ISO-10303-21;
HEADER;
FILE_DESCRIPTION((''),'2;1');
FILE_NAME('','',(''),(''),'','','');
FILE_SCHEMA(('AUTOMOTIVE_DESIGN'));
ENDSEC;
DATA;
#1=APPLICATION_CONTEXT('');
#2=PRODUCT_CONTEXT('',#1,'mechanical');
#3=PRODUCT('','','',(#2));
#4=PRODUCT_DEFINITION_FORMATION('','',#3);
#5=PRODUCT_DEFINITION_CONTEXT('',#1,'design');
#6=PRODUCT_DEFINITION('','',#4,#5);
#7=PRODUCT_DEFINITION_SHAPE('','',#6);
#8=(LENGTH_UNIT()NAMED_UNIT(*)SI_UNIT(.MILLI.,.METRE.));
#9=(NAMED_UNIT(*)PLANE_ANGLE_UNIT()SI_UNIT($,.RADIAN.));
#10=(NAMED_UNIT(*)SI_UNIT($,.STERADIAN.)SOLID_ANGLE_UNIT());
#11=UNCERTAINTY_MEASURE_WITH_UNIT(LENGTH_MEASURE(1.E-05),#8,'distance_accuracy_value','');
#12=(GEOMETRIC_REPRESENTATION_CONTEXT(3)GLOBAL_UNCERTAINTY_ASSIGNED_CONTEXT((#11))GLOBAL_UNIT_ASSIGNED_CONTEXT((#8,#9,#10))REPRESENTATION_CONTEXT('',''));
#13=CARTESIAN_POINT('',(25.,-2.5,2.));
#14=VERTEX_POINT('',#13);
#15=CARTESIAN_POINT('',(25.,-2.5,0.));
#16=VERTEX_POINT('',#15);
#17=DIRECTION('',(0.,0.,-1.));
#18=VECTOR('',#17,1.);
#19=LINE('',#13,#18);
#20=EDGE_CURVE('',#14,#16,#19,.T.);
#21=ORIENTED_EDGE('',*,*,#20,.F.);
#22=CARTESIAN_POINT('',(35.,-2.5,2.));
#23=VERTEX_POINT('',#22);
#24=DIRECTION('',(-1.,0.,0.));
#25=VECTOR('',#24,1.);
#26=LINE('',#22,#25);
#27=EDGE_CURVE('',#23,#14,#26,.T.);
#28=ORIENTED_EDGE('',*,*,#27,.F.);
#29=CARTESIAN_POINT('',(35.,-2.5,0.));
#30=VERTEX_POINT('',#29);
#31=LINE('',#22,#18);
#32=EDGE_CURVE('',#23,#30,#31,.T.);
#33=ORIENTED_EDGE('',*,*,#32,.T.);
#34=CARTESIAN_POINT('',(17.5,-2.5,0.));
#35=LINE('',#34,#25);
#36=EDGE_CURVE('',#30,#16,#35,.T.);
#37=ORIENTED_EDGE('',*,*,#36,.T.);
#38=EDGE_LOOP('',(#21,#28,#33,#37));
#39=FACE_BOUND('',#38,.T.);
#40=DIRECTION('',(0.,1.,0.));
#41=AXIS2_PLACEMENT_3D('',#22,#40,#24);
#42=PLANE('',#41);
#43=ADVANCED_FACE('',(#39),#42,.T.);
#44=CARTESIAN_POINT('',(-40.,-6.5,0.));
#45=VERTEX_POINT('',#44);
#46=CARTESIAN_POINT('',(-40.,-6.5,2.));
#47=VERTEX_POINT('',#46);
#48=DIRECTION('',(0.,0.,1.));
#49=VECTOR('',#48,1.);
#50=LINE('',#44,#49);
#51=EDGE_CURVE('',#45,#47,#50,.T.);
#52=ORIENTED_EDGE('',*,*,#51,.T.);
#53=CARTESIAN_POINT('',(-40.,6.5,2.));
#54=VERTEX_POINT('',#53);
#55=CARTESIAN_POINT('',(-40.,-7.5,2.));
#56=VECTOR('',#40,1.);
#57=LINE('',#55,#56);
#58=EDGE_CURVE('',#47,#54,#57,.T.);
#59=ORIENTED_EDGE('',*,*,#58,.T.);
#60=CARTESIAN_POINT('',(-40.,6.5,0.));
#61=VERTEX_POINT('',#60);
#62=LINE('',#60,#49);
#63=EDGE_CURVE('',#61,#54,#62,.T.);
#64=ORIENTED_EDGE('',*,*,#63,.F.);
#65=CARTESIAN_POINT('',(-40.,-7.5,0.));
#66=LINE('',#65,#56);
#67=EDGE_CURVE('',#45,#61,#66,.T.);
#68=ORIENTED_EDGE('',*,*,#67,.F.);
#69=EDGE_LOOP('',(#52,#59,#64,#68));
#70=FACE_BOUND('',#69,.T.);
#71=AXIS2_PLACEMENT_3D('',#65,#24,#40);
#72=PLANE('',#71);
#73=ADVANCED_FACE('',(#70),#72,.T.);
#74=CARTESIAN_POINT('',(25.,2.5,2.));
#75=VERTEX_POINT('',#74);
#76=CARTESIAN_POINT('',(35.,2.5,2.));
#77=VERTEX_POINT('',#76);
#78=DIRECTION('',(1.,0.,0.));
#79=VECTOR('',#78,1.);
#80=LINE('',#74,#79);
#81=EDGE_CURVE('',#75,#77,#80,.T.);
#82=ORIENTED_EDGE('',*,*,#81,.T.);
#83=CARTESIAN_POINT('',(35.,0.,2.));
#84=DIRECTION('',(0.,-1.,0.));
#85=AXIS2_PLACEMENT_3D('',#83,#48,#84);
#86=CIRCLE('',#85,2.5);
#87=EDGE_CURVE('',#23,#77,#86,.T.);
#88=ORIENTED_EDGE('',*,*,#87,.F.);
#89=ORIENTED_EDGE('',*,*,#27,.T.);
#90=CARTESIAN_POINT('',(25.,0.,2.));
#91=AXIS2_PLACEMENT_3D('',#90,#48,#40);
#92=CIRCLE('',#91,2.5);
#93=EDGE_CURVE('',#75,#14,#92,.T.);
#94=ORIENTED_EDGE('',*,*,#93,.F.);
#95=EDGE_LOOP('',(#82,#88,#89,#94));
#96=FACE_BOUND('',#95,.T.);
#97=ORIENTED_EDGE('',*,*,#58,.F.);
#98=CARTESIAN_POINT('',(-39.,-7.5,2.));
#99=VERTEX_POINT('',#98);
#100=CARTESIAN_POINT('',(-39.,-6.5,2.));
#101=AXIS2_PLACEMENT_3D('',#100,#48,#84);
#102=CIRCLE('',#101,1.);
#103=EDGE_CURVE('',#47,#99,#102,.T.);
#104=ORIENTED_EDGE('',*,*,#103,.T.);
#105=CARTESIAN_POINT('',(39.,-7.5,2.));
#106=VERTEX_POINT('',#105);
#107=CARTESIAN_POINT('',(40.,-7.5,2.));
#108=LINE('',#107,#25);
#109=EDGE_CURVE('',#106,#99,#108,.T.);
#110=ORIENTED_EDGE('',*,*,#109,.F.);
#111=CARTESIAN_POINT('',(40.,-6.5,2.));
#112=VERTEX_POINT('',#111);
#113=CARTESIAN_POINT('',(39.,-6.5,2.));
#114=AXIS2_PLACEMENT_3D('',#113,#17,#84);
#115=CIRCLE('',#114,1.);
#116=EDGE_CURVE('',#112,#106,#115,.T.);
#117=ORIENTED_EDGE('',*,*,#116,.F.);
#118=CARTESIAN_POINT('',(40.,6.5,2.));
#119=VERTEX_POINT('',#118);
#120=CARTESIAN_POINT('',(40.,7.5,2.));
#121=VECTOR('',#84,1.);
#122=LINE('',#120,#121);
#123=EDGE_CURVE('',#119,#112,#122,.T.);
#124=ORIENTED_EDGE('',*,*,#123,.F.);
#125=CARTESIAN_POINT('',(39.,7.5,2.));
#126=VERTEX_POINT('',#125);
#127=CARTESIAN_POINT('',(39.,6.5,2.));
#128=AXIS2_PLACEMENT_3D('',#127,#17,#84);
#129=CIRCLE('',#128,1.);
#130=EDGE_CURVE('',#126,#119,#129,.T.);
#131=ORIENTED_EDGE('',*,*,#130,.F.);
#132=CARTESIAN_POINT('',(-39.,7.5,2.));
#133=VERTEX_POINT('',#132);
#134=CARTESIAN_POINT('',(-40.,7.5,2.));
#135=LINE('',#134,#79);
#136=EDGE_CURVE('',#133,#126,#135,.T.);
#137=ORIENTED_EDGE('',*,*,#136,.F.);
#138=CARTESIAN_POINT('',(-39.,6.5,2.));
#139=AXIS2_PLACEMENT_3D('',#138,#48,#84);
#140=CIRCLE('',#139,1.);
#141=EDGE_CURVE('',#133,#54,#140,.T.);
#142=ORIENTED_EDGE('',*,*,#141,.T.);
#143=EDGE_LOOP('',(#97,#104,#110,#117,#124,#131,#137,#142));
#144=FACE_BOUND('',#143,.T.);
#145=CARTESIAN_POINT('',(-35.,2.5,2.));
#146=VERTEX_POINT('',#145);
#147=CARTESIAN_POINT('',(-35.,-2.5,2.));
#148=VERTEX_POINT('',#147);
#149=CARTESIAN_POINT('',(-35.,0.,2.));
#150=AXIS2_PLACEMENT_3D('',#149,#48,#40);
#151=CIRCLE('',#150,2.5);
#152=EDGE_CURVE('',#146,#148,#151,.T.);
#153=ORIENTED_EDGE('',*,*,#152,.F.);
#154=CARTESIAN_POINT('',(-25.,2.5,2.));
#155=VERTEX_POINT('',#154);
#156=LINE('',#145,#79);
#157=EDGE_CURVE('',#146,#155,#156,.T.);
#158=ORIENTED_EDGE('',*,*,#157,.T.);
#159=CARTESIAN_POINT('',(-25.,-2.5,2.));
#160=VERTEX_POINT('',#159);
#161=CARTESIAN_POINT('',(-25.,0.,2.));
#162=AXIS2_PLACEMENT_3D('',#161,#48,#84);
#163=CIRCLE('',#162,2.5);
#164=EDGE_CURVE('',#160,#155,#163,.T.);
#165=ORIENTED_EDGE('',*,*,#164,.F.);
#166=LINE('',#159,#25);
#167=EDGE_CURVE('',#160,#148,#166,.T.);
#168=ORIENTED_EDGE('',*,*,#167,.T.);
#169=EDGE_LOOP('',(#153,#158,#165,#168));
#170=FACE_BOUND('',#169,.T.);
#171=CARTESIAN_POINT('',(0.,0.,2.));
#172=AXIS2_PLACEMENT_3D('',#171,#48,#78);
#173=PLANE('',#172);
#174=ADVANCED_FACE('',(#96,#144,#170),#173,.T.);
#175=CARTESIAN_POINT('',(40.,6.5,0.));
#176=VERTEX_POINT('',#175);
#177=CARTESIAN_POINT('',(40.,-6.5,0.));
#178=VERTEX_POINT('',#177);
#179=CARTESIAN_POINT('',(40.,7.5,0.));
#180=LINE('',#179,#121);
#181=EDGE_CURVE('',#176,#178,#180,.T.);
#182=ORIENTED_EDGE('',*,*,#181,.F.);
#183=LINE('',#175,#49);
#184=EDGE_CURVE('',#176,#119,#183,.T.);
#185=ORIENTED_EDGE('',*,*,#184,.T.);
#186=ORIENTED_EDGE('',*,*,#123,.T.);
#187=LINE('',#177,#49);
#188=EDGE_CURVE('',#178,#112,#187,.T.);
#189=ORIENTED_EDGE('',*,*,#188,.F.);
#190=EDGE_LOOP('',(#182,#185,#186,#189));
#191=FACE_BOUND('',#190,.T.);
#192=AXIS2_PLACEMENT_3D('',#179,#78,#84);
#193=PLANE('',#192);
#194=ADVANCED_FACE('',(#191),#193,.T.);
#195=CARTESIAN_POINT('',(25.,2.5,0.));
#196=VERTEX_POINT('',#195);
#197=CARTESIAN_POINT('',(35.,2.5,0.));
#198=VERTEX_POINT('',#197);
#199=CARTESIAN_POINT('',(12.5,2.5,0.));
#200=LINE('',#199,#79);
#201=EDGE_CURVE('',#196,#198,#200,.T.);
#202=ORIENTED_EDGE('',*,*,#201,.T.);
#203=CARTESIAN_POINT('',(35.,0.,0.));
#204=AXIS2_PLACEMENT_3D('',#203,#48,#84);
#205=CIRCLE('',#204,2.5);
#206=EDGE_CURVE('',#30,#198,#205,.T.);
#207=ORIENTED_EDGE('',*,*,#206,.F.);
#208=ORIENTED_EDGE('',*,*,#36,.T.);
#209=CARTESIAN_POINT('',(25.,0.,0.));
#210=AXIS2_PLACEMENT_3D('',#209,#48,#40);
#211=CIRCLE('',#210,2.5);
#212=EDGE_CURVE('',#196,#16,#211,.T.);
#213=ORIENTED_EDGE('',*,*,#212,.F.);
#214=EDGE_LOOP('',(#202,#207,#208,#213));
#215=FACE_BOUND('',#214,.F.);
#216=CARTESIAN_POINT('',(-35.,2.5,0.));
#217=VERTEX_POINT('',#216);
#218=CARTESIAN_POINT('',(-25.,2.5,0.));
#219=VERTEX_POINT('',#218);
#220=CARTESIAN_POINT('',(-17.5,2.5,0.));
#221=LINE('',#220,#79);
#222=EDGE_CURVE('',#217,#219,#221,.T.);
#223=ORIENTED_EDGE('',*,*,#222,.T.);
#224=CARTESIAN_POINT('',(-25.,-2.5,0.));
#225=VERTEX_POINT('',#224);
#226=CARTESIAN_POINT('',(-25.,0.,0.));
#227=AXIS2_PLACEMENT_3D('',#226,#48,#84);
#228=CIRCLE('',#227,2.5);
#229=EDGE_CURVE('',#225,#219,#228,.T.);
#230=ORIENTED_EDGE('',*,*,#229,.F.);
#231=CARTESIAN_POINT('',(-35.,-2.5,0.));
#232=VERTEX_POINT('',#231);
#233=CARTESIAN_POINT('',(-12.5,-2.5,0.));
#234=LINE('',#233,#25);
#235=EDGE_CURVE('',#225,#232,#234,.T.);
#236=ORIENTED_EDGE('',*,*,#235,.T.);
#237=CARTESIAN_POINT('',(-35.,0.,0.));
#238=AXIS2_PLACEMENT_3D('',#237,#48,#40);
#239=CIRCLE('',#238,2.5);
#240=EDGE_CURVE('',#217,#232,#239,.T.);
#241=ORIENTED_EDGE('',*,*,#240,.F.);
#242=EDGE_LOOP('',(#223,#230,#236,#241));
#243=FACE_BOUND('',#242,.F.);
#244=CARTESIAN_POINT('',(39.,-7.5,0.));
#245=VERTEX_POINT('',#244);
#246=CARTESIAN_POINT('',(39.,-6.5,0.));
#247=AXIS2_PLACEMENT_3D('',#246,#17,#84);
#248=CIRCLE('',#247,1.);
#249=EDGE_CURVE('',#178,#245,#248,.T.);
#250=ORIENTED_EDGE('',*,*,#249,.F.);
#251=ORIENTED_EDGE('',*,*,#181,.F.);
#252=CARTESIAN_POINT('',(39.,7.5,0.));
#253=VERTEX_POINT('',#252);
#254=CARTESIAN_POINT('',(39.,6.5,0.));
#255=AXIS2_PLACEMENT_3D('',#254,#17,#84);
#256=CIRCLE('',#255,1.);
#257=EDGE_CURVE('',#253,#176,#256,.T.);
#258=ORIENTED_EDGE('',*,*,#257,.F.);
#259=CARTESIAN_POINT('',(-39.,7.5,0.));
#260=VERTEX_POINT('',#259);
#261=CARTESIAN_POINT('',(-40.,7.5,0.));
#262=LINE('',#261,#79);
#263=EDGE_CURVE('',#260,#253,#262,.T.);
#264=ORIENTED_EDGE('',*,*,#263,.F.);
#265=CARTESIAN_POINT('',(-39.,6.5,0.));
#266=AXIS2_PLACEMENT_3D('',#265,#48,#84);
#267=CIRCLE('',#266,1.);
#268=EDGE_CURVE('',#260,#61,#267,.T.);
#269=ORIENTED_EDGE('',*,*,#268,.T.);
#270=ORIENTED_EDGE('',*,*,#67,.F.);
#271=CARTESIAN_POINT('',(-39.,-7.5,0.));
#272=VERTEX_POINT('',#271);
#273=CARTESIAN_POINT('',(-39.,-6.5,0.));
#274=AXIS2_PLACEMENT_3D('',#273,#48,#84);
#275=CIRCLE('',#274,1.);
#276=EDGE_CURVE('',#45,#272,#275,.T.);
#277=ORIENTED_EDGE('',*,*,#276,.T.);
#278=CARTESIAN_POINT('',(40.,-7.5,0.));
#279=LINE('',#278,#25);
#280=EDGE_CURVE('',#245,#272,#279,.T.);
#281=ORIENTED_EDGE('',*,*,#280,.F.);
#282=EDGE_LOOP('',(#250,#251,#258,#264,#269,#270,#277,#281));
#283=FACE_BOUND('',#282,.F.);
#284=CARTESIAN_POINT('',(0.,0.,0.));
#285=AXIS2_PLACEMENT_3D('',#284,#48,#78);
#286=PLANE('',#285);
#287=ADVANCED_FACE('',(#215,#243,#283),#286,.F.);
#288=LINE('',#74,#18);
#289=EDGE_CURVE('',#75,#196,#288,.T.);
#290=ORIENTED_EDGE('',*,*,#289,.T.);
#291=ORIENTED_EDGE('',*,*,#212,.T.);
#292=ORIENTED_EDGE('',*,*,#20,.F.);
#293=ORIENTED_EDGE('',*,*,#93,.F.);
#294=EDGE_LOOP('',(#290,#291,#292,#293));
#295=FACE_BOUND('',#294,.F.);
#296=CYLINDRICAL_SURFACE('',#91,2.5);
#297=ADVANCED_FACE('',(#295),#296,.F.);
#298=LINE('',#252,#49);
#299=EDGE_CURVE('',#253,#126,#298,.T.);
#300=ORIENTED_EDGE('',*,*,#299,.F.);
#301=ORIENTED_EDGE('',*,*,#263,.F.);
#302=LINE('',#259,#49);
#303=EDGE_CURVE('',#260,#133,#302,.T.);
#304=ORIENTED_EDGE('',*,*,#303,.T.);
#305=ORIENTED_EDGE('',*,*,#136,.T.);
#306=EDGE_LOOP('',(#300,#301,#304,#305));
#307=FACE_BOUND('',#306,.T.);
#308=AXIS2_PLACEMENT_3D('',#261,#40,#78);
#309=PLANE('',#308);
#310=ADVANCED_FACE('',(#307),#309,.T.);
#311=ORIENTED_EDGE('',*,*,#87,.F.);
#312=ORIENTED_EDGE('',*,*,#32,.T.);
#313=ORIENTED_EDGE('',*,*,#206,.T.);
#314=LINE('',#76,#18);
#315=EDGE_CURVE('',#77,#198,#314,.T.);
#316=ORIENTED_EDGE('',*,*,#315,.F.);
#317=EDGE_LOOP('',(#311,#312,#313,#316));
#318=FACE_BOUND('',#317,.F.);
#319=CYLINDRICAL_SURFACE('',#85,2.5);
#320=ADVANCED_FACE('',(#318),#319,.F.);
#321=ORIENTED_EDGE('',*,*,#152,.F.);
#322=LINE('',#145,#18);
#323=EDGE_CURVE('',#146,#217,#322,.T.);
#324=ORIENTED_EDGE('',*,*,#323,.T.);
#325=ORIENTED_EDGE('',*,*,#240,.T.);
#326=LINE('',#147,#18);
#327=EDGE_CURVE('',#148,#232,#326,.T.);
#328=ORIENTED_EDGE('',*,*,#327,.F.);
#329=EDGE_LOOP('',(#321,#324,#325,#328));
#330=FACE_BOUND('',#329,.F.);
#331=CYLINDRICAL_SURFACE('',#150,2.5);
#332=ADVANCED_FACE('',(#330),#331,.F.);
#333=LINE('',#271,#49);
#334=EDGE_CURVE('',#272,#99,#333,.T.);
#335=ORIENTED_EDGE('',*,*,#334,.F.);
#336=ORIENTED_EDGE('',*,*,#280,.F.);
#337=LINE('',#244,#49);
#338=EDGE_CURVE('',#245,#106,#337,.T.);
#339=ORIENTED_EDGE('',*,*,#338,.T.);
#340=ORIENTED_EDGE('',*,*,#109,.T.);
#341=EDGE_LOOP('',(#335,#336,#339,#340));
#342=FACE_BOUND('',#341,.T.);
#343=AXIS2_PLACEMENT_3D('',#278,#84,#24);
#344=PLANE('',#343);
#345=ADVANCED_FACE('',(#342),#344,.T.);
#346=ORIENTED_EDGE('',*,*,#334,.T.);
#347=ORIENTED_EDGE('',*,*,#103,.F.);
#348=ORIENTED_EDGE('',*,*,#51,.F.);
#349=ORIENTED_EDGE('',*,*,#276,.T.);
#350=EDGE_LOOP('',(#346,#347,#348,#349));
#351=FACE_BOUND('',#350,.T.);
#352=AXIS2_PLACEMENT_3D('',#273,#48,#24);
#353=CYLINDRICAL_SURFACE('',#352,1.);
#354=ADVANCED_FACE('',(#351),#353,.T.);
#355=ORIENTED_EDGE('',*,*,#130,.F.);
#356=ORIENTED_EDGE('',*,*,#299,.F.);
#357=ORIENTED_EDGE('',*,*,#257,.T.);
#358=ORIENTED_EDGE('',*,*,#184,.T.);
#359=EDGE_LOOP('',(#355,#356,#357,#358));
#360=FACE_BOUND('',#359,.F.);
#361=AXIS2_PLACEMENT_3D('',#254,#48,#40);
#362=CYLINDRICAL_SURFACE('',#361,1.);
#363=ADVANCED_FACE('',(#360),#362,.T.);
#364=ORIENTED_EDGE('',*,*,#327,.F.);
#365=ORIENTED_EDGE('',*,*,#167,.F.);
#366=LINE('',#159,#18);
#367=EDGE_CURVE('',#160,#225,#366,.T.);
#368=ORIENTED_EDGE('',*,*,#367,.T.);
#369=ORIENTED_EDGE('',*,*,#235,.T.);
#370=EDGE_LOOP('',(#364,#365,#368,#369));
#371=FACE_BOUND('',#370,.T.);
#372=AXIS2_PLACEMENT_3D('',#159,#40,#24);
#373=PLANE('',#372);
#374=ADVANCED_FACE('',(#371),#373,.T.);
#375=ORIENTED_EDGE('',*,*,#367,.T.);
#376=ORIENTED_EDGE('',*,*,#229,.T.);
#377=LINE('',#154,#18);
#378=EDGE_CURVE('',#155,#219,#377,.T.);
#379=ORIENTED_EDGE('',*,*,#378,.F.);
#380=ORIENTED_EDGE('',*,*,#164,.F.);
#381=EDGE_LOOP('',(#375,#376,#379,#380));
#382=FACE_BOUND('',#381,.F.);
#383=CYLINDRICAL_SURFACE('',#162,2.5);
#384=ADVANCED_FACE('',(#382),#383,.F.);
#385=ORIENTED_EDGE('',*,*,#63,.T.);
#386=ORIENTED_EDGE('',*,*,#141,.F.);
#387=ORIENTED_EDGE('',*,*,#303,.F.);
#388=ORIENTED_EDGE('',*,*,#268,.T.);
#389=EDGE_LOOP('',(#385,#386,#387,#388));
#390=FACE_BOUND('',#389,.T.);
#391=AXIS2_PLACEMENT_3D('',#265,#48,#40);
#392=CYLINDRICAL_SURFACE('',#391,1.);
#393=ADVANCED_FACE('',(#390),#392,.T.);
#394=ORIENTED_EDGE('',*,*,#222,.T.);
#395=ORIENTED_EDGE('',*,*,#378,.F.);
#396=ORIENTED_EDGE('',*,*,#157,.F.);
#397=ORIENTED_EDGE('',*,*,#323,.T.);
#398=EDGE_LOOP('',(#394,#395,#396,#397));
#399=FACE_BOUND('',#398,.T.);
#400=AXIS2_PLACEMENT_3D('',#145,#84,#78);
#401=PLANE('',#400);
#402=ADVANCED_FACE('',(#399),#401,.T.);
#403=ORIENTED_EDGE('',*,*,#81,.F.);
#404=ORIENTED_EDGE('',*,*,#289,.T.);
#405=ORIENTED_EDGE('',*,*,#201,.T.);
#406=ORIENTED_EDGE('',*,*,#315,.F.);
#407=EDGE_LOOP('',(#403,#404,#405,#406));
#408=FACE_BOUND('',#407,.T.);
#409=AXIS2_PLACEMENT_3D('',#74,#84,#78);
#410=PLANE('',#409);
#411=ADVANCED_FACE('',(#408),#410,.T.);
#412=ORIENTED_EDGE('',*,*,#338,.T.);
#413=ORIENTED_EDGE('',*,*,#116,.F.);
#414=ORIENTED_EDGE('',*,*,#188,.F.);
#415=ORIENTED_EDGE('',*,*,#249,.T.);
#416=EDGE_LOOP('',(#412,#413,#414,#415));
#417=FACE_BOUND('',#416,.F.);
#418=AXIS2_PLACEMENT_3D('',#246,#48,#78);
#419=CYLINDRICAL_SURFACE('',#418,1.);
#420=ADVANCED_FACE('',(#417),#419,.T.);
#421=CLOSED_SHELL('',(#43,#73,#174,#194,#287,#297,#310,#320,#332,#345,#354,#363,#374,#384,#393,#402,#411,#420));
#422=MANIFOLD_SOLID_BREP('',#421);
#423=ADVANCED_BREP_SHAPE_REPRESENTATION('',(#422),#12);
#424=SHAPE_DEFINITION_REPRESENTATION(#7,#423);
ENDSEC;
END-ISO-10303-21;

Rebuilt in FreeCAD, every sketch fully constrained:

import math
import FreeCAD as App
import Part
import Sketcher

V = App.Vector
Q = App.Units.Quantity


def edges_at(feature, points):
    """Names of the edges that pass closest to the given points."""
    edges = feature.Shape.Edges
    near = lambda p: min(range(len(edges)), key=lambda i: edges[i].distToShape(Part.Vertex(*p))[0])
    return sorted({f"Edge{near(p) + 1}" for p in points})

doc = App.newDocument("Part")
body = doc.addObject("PartDesign::Body", "Body")

# Sketch on XY plane
sketch1 = body.newObject("Sketcher::SketchObject", "Sketch")
sketch1.AttachmentSupport = (doc.getObject("XY_Plane"), [""])
sketch1.MapMode = "FlatFace"
sketch1.addGeometry([
    Part.LineSegment(V(40, 7.5, 0), V(-40, 7.5, 0)),
    Part.LineSegment(V(-40, 7.5, 0), V(-40, -7.5, 0)),
    Part.LineSegment(V(-40, -7.5, 0), V(40, -7.5, 0)),
    Part.LineSegment(V(40, -7.5, 0), V(40, 7.5, 0)),
], False)
sketch1.addConstraint([
    Sketcher.Constraint("Coincident", 0, 2, 1, 1),
    Sketcher.Constraint("Coincident", 1, 2, 2, 1),
    Sketcher.Constraint("Coincident", 2, 2, 3, 1),
    Sketcher.Constraint("Coincident", 3, 2, 0, 1),
    Sketcher.Constraint("Horizontal", 0),
    Sketcher.Constraint("Vertical", 1),
    Sketcher.Constraint("Horizontal", 2),
    Sketcher.Constraint("Vertical", 3),
    Sketcher.Constraint("Symmetric", 0, 2, 2, 2, -1, 1),
    Sketcher.Constraint("DistanceX", 0, 2, 0, 1, Q("80 mm")),
    Sketcher.Constraint("DistanceY", 1, 2, 1, 1, Q("15 mm")),
])
pad1 = body.newObject("PartDesign::Pad", "Pad")
pad1.Profile = sketch1
pad1.Length = 2

# Sketch on XY plane
sketch2 = body.newObject("Sketcher::SketchObject", "Sketch001")
sketch2.AttachmentSupport = (doc.getObject("XY_Plane"), [""])
sketch2.MapMode = "FlatFace"
sketch2.AttachmentOffset = App.Placement(V(0, 0, 2), App.Rotation())
sketch2.addGeometry([
    Part.LineSegment(V(-25, 2.5, 0), V(-35, 2.5, 0)),  # 0
    Part.ArcOfCircle(Part.Circle(V(-35, 0, 0), V(0, 0, 1), 2.5), math.radians(90), math.radians(270)),  # 1
    Part.LineSegment(V(-35, -2.5, 0), V(-25, -2.5, 0)),  # 2
    Part.ArcOfCircle(Part.Circle(V(-25, 0, 0), V(0, 0, 1), 2.5), math.radians(-90), math.radians(90)),  # 3
    Part.LineSegment(V(35, 2.5, 0), V(25, 2.5, 0)),  # 4
    Part.ArcOfCircle(Part.Circle(V(25, 0, 0), V(0, 0, 1), 2.5), math.radians(90), math.radians(270)),  # 5
    Part.LineSegment(V(25, -2.5, 0), V(35, -2.5, 0)),  # 6
    Part.ArcOfCircle(Part.Circle(V(35, 0, 0), V(0, 0, 1), 2.5), math.radians(-90), math.radians(90)),  # 7
], False)
sketch2.addConstraint([
    Sketcher.Constraint("Tangent", 0, 2, 1, 1),
    Sketcher.Constraint("Tangent", 1, 2, 2, 1),
    Sketcher.Constraint("Tangent", 2, 2, 3, 1),
    Sketcher.Constraint("Tangent", 3, 2, 0, 1),
    Sketcher.Constraint("Tangent", 4, 2, 5, 1),
    Sketcher.Constraint("Tangent", 5, 2, 6, 1),
    Sketcher.Constraint("Tangent", 6, 2, 7, 1),
    Sketcher.Constraint("Tangent", 7, 2, 4, 1),
    Sketcher.Constraint("Horizontal", 0),
    Sketcher.Constraint("Horizontal", 2),
    Sketcher.Constraint("Horizontal", 4),
    Sketcher.Constraint("Horizontal", 6),
    Sketcher.Constraint("Equal", 3, 5),
    Sketcher.Constraint("Symmetric", 3, 3, 5, 3, -1, 1),
    Sketcher.Constraint("Symmetric", 1, 3, 7, 3, -2),
    Sketcher.Constraint("Radius", 1, Q("2.5 mm")),
    Sketcher.Constraint("DistanceX", 0, 2, 0, 1, Q("10 mm")),
    Sketcher.Constraint("DistanceX", 1, 3, 5, 3, Q("60 mm")),
])
pocket1 = body.newObject("PartDesign::Pocket", "Pocket")
pocket1.Profile = sketch2
pocket1.Type = "ThroughAll"
doc.recompute()

fillet = body.newObject("PartDesign::Fillet", "Fillet")
fillet.Base = (pocket1, edges_at(pocket1, [
    (-40, 7.5, 1),
    (-40, -7.5, 1),
    (40, -7.5, 1),
    (40, 7.5, 1),
]))
fillet.Radius = 1

doc.recompute()
